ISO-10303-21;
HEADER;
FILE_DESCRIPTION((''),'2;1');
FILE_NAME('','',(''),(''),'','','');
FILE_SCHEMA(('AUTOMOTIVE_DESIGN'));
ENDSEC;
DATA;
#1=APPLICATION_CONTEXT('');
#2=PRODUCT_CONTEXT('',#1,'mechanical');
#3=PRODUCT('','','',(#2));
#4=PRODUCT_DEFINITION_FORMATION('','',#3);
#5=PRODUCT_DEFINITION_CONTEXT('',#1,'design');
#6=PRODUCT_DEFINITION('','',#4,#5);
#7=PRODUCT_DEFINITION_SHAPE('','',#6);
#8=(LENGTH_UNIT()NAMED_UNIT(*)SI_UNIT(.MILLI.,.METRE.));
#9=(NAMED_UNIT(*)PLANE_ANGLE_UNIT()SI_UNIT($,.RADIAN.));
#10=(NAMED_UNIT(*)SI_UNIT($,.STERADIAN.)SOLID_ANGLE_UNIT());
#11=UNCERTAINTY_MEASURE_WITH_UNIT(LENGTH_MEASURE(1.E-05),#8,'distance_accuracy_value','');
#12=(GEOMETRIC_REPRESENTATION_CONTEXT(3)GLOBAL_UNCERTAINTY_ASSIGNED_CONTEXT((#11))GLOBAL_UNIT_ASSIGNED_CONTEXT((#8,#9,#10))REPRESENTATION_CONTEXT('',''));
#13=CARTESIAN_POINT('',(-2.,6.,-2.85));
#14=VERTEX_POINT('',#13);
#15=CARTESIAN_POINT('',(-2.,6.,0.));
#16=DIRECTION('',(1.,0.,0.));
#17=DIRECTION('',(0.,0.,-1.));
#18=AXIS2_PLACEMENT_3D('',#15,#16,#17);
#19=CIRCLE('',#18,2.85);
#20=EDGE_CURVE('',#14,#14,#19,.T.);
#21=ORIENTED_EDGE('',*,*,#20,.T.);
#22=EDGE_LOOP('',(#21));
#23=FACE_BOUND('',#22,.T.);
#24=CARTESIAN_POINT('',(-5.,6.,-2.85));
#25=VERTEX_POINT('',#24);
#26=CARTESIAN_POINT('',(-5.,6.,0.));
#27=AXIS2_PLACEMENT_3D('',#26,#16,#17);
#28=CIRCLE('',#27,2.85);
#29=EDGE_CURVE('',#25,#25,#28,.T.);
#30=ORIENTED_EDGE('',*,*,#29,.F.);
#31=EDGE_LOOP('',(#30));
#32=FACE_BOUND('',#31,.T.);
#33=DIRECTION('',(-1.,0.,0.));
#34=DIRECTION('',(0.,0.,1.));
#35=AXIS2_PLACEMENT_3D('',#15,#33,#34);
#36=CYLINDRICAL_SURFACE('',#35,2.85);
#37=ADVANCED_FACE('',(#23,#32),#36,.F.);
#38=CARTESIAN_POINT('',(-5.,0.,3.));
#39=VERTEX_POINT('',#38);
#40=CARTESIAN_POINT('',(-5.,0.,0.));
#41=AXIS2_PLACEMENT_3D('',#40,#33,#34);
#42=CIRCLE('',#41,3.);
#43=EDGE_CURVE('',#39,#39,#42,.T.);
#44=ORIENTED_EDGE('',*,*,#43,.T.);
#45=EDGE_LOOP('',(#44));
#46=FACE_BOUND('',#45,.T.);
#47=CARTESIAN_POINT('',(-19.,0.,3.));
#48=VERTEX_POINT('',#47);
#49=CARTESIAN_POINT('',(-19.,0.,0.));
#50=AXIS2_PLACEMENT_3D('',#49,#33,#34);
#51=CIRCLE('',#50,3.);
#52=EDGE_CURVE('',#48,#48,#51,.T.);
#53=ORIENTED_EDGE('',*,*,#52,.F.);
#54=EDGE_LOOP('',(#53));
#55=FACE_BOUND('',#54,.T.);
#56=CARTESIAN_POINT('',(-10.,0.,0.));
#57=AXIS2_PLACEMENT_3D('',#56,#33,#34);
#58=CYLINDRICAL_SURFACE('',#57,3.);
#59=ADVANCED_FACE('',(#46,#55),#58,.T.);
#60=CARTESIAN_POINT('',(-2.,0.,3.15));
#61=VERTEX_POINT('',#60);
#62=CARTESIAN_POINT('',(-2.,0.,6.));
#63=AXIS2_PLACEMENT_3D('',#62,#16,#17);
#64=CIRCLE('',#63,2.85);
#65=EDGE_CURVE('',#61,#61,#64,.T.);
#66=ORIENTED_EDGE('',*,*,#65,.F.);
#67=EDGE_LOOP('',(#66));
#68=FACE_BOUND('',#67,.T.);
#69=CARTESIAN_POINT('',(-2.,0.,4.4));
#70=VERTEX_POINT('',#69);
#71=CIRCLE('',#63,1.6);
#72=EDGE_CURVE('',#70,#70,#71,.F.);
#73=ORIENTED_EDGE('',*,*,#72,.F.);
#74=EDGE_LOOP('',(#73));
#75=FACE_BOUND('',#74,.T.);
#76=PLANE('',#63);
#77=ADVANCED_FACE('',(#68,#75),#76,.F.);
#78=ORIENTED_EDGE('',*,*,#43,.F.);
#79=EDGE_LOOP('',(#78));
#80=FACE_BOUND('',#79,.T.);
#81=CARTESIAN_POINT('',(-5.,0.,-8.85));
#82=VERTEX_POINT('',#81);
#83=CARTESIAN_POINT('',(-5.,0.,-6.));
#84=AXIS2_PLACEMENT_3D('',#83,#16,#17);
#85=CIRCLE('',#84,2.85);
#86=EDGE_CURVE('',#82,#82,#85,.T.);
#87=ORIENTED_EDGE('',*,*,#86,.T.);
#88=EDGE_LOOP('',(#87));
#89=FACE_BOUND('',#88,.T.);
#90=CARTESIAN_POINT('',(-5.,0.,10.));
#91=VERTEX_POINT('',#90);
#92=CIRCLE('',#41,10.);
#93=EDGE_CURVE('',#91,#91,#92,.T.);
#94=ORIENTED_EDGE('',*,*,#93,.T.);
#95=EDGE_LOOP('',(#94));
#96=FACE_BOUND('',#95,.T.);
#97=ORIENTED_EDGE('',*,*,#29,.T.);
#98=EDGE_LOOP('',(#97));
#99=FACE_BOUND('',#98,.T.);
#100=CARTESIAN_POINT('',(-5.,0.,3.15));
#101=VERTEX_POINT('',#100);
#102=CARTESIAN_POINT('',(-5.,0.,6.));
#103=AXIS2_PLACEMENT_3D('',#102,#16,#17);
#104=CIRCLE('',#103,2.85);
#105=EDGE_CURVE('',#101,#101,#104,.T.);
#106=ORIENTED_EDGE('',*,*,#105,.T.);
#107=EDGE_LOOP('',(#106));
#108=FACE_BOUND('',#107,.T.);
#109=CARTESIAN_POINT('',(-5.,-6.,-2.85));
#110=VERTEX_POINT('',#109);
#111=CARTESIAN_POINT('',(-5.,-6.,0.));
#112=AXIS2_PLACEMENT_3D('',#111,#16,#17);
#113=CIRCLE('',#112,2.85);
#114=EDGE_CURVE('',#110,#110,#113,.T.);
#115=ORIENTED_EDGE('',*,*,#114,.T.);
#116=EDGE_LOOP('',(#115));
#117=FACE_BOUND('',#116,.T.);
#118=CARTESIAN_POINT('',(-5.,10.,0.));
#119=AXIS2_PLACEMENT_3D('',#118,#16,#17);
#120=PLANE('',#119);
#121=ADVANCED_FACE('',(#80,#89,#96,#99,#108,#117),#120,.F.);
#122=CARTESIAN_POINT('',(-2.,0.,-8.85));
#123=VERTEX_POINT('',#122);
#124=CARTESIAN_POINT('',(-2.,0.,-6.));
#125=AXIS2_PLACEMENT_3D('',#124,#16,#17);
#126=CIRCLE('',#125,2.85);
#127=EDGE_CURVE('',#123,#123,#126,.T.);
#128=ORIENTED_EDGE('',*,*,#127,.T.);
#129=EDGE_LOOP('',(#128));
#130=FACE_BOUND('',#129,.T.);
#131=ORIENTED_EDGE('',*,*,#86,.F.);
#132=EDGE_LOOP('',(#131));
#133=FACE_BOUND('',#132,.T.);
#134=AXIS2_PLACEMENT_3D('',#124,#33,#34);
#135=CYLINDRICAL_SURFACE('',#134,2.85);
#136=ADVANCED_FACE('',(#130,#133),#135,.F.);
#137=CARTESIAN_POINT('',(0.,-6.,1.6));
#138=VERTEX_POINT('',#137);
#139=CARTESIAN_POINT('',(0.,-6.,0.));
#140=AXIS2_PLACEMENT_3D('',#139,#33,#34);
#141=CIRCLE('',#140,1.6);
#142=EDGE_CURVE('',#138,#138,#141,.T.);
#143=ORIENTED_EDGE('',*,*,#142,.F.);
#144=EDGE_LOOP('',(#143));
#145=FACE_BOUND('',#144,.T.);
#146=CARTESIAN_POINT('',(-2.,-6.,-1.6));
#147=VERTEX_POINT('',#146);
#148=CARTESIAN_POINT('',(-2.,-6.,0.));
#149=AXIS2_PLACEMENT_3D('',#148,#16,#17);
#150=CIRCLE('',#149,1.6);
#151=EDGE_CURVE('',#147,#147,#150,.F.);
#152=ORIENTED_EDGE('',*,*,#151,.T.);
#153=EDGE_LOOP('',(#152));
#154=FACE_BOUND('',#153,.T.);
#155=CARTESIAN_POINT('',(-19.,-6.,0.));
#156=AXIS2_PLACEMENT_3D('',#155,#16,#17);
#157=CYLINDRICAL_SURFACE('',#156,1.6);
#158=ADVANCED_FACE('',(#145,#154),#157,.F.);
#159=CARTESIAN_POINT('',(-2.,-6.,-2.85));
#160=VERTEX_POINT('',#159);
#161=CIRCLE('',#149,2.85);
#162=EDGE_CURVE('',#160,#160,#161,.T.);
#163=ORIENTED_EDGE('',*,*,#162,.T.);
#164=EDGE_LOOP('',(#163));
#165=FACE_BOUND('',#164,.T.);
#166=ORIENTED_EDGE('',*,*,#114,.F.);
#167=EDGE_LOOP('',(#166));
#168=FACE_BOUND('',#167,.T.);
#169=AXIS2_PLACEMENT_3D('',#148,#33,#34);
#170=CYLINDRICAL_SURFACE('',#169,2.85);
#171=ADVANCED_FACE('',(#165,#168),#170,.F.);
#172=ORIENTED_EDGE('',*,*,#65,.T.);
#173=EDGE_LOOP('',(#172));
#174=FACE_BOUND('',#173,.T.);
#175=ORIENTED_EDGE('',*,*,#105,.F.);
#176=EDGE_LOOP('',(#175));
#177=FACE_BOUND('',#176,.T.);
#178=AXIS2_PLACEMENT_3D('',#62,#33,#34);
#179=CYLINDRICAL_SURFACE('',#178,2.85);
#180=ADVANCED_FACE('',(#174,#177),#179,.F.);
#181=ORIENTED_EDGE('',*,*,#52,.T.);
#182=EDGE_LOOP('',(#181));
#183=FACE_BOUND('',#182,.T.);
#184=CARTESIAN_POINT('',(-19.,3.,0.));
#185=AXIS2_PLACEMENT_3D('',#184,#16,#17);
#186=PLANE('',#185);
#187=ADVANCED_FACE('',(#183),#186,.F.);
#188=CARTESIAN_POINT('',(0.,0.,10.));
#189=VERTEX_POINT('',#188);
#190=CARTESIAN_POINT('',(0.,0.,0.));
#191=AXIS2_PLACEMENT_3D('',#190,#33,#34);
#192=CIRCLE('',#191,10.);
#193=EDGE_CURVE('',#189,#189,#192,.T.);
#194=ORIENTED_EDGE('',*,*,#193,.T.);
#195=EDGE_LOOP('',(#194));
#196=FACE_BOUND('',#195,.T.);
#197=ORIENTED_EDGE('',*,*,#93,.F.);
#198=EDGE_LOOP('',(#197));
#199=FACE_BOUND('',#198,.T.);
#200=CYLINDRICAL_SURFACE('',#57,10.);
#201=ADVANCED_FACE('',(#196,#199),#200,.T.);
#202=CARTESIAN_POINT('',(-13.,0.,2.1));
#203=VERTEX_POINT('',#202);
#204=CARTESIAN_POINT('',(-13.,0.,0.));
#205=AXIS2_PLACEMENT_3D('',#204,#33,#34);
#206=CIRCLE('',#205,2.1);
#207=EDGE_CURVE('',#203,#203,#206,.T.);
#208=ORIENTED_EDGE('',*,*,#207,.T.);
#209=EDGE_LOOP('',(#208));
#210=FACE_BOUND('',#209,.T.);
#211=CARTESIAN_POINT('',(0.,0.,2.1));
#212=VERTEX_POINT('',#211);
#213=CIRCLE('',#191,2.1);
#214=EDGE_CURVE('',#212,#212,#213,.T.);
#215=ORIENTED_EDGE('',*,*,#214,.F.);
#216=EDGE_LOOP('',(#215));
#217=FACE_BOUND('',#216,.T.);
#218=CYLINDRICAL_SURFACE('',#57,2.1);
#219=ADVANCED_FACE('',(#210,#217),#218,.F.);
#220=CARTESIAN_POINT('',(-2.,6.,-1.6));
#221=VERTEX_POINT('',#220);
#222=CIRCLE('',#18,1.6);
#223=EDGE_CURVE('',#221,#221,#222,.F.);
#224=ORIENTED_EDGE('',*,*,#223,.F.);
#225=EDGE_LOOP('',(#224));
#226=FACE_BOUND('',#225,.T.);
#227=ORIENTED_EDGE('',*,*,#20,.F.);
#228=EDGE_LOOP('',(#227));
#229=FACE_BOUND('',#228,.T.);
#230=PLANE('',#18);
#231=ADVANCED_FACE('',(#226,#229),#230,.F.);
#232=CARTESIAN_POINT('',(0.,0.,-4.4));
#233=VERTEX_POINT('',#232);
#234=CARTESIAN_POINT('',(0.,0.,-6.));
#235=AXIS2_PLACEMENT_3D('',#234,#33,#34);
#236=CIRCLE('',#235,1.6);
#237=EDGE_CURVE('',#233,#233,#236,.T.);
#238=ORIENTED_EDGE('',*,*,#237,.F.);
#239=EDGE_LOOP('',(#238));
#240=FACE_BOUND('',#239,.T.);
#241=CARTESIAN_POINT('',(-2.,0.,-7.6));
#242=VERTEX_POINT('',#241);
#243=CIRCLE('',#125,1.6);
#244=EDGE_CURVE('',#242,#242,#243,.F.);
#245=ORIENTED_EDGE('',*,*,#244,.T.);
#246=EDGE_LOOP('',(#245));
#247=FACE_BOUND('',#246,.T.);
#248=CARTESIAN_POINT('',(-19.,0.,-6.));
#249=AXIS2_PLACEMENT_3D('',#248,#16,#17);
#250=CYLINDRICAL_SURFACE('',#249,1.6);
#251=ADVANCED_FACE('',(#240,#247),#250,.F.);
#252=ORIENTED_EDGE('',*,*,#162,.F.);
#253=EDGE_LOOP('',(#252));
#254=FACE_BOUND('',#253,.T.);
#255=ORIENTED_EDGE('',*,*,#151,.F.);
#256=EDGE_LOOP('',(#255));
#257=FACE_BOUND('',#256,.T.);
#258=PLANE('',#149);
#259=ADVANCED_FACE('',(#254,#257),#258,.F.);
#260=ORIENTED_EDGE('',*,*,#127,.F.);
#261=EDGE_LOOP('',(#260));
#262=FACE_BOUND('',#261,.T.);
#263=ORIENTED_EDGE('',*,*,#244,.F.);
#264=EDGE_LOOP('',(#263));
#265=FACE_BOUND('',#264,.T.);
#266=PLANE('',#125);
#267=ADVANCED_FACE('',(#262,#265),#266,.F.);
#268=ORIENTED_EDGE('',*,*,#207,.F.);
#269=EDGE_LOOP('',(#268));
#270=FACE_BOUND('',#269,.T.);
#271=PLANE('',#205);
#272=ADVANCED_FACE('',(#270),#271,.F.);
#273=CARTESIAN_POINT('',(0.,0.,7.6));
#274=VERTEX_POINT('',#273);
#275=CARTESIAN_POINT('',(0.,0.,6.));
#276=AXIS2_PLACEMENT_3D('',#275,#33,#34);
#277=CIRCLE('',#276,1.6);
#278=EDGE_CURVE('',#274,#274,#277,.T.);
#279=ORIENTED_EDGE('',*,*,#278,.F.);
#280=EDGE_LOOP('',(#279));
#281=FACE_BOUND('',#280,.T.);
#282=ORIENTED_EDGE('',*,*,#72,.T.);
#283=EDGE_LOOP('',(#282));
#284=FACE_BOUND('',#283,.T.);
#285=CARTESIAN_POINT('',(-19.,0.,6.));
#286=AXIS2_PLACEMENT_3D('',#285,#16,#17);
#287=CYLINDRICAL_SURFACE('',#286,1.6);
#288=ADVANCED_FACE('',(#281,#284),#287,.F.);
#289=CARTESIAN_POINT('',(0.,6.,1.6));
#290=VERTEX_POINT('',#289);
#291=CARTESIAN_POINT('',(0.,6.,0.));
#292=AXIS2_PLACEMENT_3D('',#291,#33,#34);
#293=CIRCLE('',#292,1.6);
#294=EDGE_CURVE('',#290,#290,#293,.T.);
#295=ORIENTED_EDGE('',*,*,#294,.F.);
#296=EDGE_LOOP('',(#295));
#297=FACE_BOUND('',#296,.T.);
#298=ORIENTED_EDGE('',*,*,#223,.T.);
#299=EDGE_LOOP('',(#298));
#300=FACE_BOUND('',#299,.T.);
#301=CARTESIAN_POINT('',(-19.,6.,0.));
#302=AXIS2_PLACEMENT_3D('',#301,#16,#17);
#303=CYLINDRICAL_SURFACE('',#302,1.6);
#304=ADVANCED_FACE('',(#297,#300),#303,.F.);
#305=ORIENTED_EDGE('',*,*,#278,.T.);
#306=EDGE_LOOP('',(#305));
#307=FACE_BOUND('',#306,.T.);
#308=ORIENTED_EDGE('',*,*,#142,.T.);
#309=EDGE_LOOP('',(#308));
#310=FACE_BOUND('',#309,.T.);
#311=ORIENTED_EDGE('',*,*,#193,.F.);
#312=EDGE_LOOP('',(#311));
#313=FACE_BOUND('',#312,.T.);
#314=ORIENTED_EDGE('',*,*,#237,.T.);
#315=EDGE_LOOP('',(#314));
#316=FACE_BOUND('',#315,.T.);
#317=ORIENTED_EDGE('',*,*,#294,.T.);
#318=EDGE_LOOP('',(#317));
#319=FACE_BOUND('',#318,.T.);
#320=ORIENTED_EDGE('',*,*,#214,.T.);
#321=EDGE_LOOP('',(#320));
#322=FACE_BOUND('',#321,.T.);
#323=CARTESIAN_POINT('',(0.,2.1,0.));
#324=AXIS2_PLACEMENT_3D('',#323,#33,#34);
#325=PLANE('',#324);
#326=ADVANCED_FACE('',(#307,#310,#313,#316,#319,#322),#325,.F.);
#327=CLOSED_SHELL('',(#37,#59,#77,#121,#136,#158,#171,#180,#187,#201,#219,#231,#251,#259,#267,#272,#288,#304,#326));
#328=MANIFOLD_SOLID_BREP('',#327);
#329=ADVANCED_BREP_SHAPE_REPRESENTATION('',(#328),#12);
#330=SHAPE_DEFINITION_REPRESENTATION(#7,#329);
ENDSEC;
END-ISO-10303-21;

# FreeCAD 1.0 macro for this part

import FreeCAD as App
import Part
import Sketcher
from FreeCAD import Vector
Q = App.Units.Quantity


def add_polygon(sketch, points):
    """Adds a closed chain of lines whose ends are joined by coincident constraints."""
    first, n = sketch.GeometryCount, len(points)
    for a, b in zip(points, points[1:] + points[:1]):
        sketch.addGeometry(Part.LineSegment(App.Vector(*a, 0), App.Vector(*b, 0)), False)
    for i in range(n):
        sketch.addConstraint(Sketcher.Constraint("Coincident", first + i, 2, first + (i + 1) % n, 1))

doc = App.newDocument("Part")
body = doc.addObject("PartDesign::Body", "Body")

sketch1 = doc.addObject("Sketcher::SketchObject", "Sketch")
body.addObject(sketch1)
sketch1.AttachmentSupport = (doc.XY_Plane, [""])
sketch1.MapMode = "FlatFace"
add_polygon(sketch1, [(0, 2.1), (0, 10), (-5, 10), (-5, 3), (-19, 3), (-19, 0), (-13, 0), (-13, 2.1)])
sketch1.addConstraint(Sketcher.Constraint("Vertical", 0))
sketch1.addConstraint(Sketcher.Constraint("Horizontal", 1))
sketch1.addConstraint(Sketcher.Constraint("Vertical", 2))
sketch1.addConstraint(Sketcher.Constraint("Horizontal", 3))
sketch1.addConstraint(Sketcher.Constraint("Vertical", 4))
sketch1.addConstraint(Sketcher.Constraint("Horizontal", 5))
sketch1.addConstraint(Sketcher.Constraint("Vertical", 6))
sketch1.addConstraint(Sketcher.Constraint("Horizontal", 7))
sketch1.addConstraint(Sketcher.Constraint("PointOnObject", 0, 2, -2))
sketch1.addConstraint(Sketcher.Constraint("PointOnObject", 4, 2, -1))
sketch1.addConstraint(Sketcher.Constraint("DistanceX", 1, 2, 1, 1, Q("5 mm")))
sketch1.addConstraint(Sketcher.Constraint("DistanceX", 3, 2, 3, 1, Q("14 mm")))
sketch1.addConstraint(Sketcher.Constraint("DistanceX", 5, 1, 5, 2, Q("6 mm")))
sketch1.addConstraint(Sketcher.Constraint("DistanceY", 2, 2, 2, 1, Q("7 mm")))
sketch1.addConstraint(Sketcher.Constraint("DistanceY", 4, 2, 4, 1, Q("3 mm")))
sketch1.addConstraint(Sketcher.Constraint("DistanceY", 0, 1, 0, 2, Q("7.9 mm")))
revolution = doc.addObject("PartDesign::Revolution", "Revolution")
body.addObject(revolution)
revolution.Profile = sketch1
revolution.ReferenceAxis = (sketch1, ["H_Axis"])
revolution.Angle = 360

sketch2 = doc.addObject("Sketcher::SketchObject", "Sketch001")
body.addObject(sketch2)
sketch2.AttachmentSupport = (doc.YZ_Plane, [""])
sketch2.MapMode = "FlatFace"
sketch2.addGeometry(Part.Circle(Vector(0, 6, 0), Vector(0, 0, 1), 1.6), False)
sketch2.addGeometry(Part.Circle(Vector(0, -6, 0), Vector(0, 0, 1), 1.6), False)
sketch2.addGeometry(Part.Circle(Vector(6, 0, 0), Vector(0, 0, 1), 1.6), False)
sketch2.addGeometry(Part.Circle(Vector(-6, 0, 0), Vector(0, 0, 1), 1.6), False)
sketch2.addConstraint(Sketcher.Constraint("Equal", 0, 1))
sketch2.addConstraint(Sketcher.Constraint("Equal", 1, 2))
sketch2.addConstraint(Sketcher.Constraint("Equal", 2, 3))
sketch2.addConstraint(Sketcher.Constraint("Symmetric", 0, 3, 1, 3, -1, 1))
sketch2.addConstraint(Sketcher.Constraint("Symmetric", 2, 3, 3, 3, -1, 1))
sketch2.addConstraint(Sketcher.Constraint("PointOnObject", 0, 3, -2))
sketch2.addConstraint(Sketcher.Constraint("PointOnObject", 2, 3, -1))
sketch2.addConstraint(Sketcher.Constraint("Diameter", 0, Q("3.2 mm")))
sketch2.addConstraint(Sketcher.Constraint("DistanceY", -1, 1, 0, 3, Q("6 mm")))
sketch2.addConstraint(Sketcher.Constraint("DistanceX", -1, 1, 2, 3, Q("6 mm")))
pocket1 = doc.addObject("PartDesign::Pocket", "Pocket")
body.addObject(pocket1)
pocket1.Profile = sketch2
pocket1.Type = "ThroughAll"
pocket1.Midplane = True

sketch3 = doc.addObject("Sketcher::SketchObject", "Sketch002")
body.addObject(sketch3)
sketch3.AttachmentSupport = (doc.YZ_Plane, [""])
sketch3.MapMode = "FlatFace"
sketch3.AttachmentOffset = App.Placement(Vector(0, 0, -5), App.Rotation())
sketch3.addGeometry(Part.Circle(Vector(0, 6, 0), Vector(0, 0, 1), 2.9), False)
sketch3.addGeometry(Part.Circle(Vector(0, -6, 0), Vector(0, 0, 1), 2.9), False)
sketch3.addGeometry(Part.Circle(Vector(6, 0, 0), Vector(0, 0, 1), 2.9), False)
sketch3.addGeometry(Part.Circle(Vector(-6, 0, 0), Vector(0, 0, 1), 2.9), False)
sketch3.addConstraint(Sketcher.Constraint("Equal", 0, 1))
sketch3.addConstraint(Sketcher.Constraint("Equal", 1, 2))
sketch3.addConstraint(Sketcher.Constraint("Equal", 2, 3))
sketch3.addConstraint(Sketcher.Constraint("Symmetric", 0, 3, 1, 3, -1, 1))
sketch3.addConstraint(Sketcher.Constraint("Symmetric", 2, 3, 3, 3, -1, 1))
sketch3.addConstraint(Sketcher.Constraint("PointOnObject", 0, 3, -2))
sketch3.addConstraint(Sketcher.Constraint("PointOnObject", 2, 3, -1))
sketch3.addConstraint(Sketcher.Constraint("Diameter", 0, Q("5.7 mm")))
sketch3.addConstraint(Sketcher.Constraint("DistanceY", -1, 1, 0, 3, Q("6 mm")))
sketch3.addConstraint(Sketcher.Constraint("DistanceX", -1, 1, 2, 3, Q("6 mm")))
pocket2 = doc.addObject("PartDesign::Pocket", "Pocket001")
body.addObject(pocket2)
pocket2.Profile = sketch3
pocket2.Length = 3
pocket2.Reversed = True

doc.recompute()
